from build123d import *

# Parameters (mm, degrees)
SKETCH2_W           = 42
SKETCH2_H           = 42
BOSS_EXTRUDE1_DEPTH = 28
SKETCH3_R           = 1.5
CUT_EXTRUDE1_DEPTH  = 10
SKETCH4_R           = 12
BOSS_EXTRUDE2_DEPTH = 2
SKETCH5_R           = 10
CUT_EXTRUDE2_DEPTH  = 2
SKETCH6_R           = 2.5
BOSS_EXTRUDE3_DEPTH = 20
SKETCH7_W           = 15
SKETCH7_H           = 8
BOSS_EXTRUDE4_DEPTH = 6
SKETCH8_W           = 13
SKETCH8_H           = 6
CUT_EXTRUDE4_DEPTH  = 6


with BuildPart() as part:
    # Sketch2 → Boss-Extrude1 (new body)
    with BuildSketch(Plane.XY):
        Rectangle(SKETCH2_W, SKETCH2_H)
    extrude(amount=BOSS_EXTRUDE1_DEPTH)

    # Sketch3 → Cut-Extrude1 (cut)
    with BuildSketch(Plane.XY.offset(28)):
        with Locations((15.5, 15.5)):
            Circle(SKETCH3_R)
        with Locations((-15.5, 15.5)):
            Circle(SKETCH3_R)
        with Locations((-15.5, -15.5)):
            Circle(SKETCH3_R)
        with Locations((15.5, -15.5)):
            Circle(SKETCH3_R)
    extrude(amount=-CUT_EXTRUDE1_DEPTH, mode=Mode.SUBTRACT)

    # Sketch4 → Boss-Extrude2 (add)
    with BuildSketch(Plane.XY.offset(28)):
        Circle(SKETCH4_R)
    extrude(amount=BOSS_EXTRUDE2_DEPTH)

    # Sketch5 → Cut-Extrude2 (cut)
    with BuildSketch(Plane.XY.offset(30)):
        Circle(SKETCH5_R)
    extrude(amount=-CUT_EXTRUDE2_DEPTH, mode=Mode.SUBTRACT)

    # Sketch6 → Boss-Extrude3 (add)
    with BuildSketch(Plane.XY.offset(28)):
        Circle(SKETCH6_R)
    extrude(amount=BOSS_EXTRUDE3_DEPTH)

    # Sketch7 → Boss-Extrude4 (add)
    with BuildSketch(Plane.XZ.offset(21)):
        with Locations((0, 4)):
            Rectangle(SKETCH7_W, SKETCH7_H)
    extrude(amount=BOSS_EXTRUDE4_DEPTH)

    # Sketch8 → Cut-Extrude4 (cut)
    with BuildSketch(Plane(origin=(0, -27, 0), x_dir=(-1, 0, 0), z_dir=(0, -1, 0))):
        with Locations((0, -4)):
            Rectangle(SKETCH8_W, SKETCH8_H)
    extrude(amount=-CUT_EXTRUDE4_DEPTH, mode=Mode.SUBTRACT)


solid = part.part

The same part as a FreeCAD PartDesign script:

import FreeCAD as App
import Part
import Sketcher

V = App.Vector

doc = App.newDocument("Part")
body = doc.addObject("PartDesign::Body", "Body")

# Sketch on XY plane
sketch1 = body.newObject("Sketcher::SketchObject", "Sketch")
sketch1.AttachmentSupport = (doc.getObject("XY_Plane"), [""])
sketch1.MapMode = "FlatFace"
sketch1.addGeometry([
    Part.LineSegment(V(-21, 21, 0), V(-21, -21, 0)),
    Part.LineSegment(V(-21, -21, 0), V(21, -21, 0)),
    Part.LineSegment(V(21, -21, 0), V(21, 21, 0)),
    Part.LineSegment(V(21, 21, 0), V(-21, 21, 0)),
], False)
sketch1.addConstraint([
    Sketcher.Constraint("Coincident", 0, 2, 1, 1),
    Sketcher.Constraint("Coincident", 1, 2, 2, 1),
    Sketcher.Constraint("Coincident", 2, 2, 3, 1),
    Sketcher.Constraint("Coincident", 3, 2, 0, 1),
    Sketcher.Constraint("Vertical", 0),
    Sketcher.Constraint("Horizontal", 1),
    Sketcher.Constraint("Vertical", 2),
    Sketcher.Constraint("Horizontal", 3),
    Sketcher.Constraint("Symmetric", 0, 2, 2, 2, -1, 1),
    Sketcher.Constraint("Equal", 3, 0),
    Sketcher.Constraint("DistanceX", 1, 1, 1, 2, 42.0),
])
pad1 = body.newObject("PartDesign::Pad", "Pad")
pad1.Profile = sketch1
pad1.Length = 28

# Sketch on XY plane
sketch2 = body.newObject("Sketcher::SketchObject", "Sketch001")
sketch2.AttachmentSupport = (doc.getObject("XY_Plane"), [""])
sketch2.MapMode = "FlatFace"
sketch2.AttachmentOffset = App.Placement(V(0, 0, 28), App.Rotation())
sketch2.addGeometry([
    Part.Circle(V(15.5, 15.5, 0), V(0, 0, 1), 1.5),
    Part.Circle(V(-15.5, 15.5, 0), V(0, 0, 1), 1.5),
    Part.Circle(V(-15.5, -15.5, 0), V(0, 0, 1), 1.5),
    Part.Circle(V(15.5, -15.5, 0), V(0, 0, 1), 1.5),
], False)
sketch2.addConstraint([
    Sketcher.Constraint("Equal", 0, 1),
    Sketcher.Constraint("Equal", 1, 2),
    Sketcher.Constraint("Equal", 2, 3),
    Sketcher.Constraint("Symmetric", 0, 3, 2, 3, -1, 1),
    Sketcher.Constraint("Symmetric", 1, 3, 3, 3, -1, 1),
    Sketcher.Constraint("Symmetric", 0, 3, 1, 3, -2),
    Sketcher.Constraint("Diameter", 0, 3.0),
    Sketcher.Constraint("DistanceX", 1, 3, 0, 3, 31.0),
    Sketcher.Constraint("DistanceY", 2, 3, 1, 3, 31.0),
])
pocket1 = body.newObject("PartDesign::Pocket", "Pocket")
pocket1.Profile = sketch2
pocket1.Length = 10

# Sketch on XY plane
sketch3 = body.newObject("Sketcher::SketchObject", "Sketch002")
sketch3.AttachmentSupport = (doc.getObject("XY_Plane"), [""])
sketch3.MapMode = "FlatFace"
sketch3.AttachmentOffset = App.Placement(V(0, 0, 28), App.Rotation())
sketch3.addGeometry(Part.Circle(V(0, 0, 0), V(0, 0, 1), 12), False)
sketch3.addConstraint([
    Sketcher.Constraint("Coincident", 0, 3, -1, 1),
    Sketcher.Constraint("Diameter", 0, 24.0),
])
pad2 = body.newObject("PartDesign::Pad", "Pad001")
pad2.Profile = sketch3
pad2.Length = 2

# Sketch on XY plane
sketch4 = body.newObject("Sketcher::SketchObject", "Sketch003")
sketch4.AttachmentSupport = (doc.getObject("XY_Plane"), [""])
sketch4.MapMode = "FlatFace"
sketch4.AttachmentOffset = App.Placement(V(0, 0, 30), App.Rotation())
sketch4.addGeometry(Part.Circle(V(0, 0, 0), V(0, 0, 1), 10), False)
sketch4.addConstraint([
    Sketcher.Constraint("Coincident", 0, 3, -1, 1),
    Sketcher.Constraint("Diameter", 0, 20.0),
])
pocket2 = body.newObject("PartDesign::Pocket", "Pocket001")
pocket2.Profile = sketch4
pocket2.Length = 2

# Sketch on XY plane
sketch5 = body.newObject("Sketcher::SketchObject", "Sketch004")
sketch5.AttachmentSupport = (doc.getObject("XY_Plane"), [""])
sketch5.MapMode = "FlatFace"
sketch5.AttachmentOffset = App.Placement(V(0, 0, 28), App.Rotation())
sketch5.addGeometry(Part.Circle(V(0, 0, 0), V(0, 0, 1), 2.5), False)
sketch5.addConstraint([
    Sketcher.Constraint("Coincident", 0, 3, -1, 1),
    Sketcher.Constraint("Diameter", 0, 5.0),
])
pad3 = body.newObject("PartDesign::Pad", "Pad002")
pad3.Profile = sketch5
pad3.Length = 20

# Sketch on XZ plane
sketch6 = body.newObject("Sketcher::SketchObject", "Sketch005")
sketch6.AttachmentSupport = (doc.getObject("XZ_Plane"), [""])
sketch6.MapMode = "FlatFace"
sketch6.AttachmentOffset = App.Placement(V(0, 0, 21), App.Rotation())
sketch6.addGeometry([
    Part.LineSegment(V(-8, 8, 0), V(-8, 0, 0)),
    Part.LineSegment(V(-8, 0, 0), V(8, 0, 0)),
    Part.LineSegment(V(8, 0, 0), V(8, 8, 0)),
    Part.LineSegment(V(8, 8, 0), V(-8, 8, 0)),
], False)
sketch6.addConstraint([
    Sketcher.Constraint("Coincident", 0, 2, 1, 1),
    Sketcher.Constraint("Coincident", 1, 2, 2, 1),
    Sketcher.Constraint("Coincident", 2, 2, 3, 1),
    Sketcher.Constraint("Coincident", 3, 2, 0, 1),
    Sketcher.Constraint("Vertical", 0),
    Sketcher.Constraint("Horizontal", 1),
    Sketcher.Constraint("Vertical", 2),
    Sketcher.Constraint("Horizontal", 3),
    Sketcher.Constraint("Symmetric", 0, 2, 1, 2, -1, 1),
    Sketcher.Constraint("DistanceX", 1, 1, 1, 2, 15.0),
    Sketcher.Constraint("DistanceY", 0, 2, 0, 1, 8.0),
])
pad4 = body.newObject("PartDesign::Pad", "Pad003")
pad4.Profile = sketch6
pad4.Length = 6

# Sketch on XZ plane
sketch7 = body.newObject("Sketcher::SketchObject", "Sketch006")
sketch7.AttachmentSupport = (doc.getObject("XZ_Plane"), [""])
sketch7.MapMode = "FlatFace"
sketch7.AttachmentOffset = App.Placement(V(0, 0, 27), App.Rotation())
sketch7.addGeometry([
    Part.LineSegment(V(6, 1, 0), V(6, 7, 0)),
    Part.LineSegment(V(6, 7, 0), V(-6, 7, 0)),
    Part.LineSegment(V(-6, 7, 0), V(-6, 1, 0)),
    Part.LineSegment(V(-6, 1, 0), V(6, 1, 0)),
], False)
sketch7.addConstraint([
    Sketcher.Constraint("Coincident", 0, 2, 1, 1),
    Sketcher.Constraint("Coincident", 1, 2, 2, 1),
    Sketcher.Constraint("Coincident", 2, 2, 3, 1),
    Sketcher.Constraint("Coincident", 3, 2, 0, 1),
    Sketcher.Constraint("Vertical", 0),
    Sketcher.Constraint("Horizontal", 1),
    Sketcher.Constraint("Vertical", 2),
    Sketcher.Constraint("Horizontal", 3),
    Sketcher.Constraint("DistanceX", 1, 2, 1, 1, 13.0),
    Sketcher.Constraint("DistanceY", 0, 1, 0, 2, 6.0),
    Sketcher.Constraint("DistanceY", -1, 1, 0, 2, 7.0),
    Sketcher.Constraint("DistanceX", -1, 1, 0, 2, 6.5),
])
pocket3 = body.newObject("PartDesign::Pocket", "Pocket002")
pocket3.Profile = sketch7
pocket3.Length = 6

doc.recompute()
